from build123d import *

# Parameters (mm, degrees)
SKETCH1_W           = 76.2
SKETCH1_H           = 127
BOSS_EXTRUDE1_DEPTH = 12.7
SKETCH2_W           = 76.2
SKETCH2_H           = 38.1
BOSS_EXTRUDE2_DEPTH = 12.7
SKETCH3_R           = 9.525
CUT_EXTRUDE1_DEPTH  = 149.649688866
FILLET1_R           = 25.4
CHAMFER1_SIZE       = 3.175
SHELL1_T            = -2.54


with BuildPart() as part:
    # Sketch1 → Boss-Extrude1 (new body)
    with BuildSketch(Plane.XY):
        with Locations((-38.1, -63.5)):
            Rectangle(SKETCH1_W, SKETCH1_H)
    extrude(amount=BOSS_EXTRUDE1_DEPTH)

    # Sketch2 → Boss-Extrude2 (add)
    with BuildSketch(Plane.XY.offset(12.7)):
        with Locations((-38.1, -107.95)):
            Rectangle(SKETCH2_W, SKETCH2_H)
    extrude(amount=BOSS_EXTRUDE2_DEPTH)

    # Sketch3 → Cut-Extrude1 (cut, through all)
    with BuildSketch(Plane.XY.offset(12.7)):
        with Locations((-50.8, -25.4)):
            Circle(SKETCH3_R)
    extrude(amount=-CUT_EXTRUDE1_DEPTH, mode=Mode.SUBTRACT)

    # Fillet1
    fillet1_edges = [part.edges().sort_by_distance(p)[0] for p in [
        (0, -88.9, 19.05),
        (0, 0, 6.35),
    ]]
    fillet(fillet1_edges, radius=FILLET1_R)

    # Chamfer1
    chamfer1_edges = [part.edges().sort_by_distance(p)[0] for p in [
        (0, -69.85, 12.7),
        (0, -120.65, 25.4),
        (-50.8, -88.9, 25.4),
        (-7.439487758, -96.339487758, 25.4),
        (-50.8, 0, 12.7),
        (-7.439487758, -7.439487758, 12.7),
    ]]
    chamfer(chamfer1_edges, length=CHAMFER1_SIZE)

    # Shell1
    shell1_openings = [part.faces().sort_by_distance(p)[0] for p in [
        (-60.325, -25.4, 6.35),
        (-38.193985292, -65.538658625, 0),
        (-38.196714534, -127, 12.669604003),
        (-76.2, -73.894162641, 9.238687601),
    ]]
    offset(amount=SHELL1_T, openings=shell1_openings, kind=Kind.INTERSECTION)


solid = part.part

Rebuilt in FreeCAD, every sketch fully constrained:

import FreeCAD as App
import Part
import Sketcher

V = App.Vector
Q = App.Units.Quantity


def edges_at(feature, points):
    """Names of the edges that pass closest to the given points."""
    edges = feature.Shape.Edges
    near = lambda p: min(range(len(edges)), key=lambda i: edges[i].distToShape(Part.Vertex(*p))[0])
    return sorted({f"Edge{near(p) + 1}" for p in points})


def faces_at(feature, points):
    """Names of the faces that lie closest to the given points."""
    faces = feature.Shape.Faces
    near = lambda p: min(range(len(faces)), key=lambda i: faces[i].distToShape(Part.Vertex(*p))[0])
    return sorted({f"Face{near(p) + 1}" for p in points})


def add_polygon(sketch, points):
    """Adds a closed chain of lines whose ends are joined by coincident constraints."""
    first, n = sketch.GeometryCount, len(points)
    for a, b in zip(points, points[1:] + points[:1]):
        sketch.addGeometry(Part.LineSegment(App.Vector(*a, 0), App.Vector(*b, 0)), False)
    for i in range(n):
        sketch.addConstraint(Sketcher.Constraint("Coincident", first + i, 2, first + (i + 1) % n, 1))

doc = App.newDocument("Part")
body = doc.addObject("PartDesign::Body", "Body")

sketch1 = body.newObject("Sketcher::SketchObject", "Sketch")
sketch1.AttachmentSupport = (doc.getObject("XY_Plane"), [""])
sketch1.MapMode = "FlatFace"
add_polygon(sketch1, [(-76.2, 0), (-76.2, -127), (0, -127), (0, 0)])
sketch1.addConstraint(Sketcher.Constraint("Vertical", 0))
sketch1.addConstraint(Sketcher.Constraint("Horizontal", 1))
sketch1.addConstraint(Sketcher.Constraint("Vertical", 2))
sketch1.addConstraint(Sketcher.Constraint("Horizontal", 3))
sketch1.addConstraint(Sketcher.Constraint("Coincident", 2, 2, -1, 1))
sketch1.addConstraint(Sketcher.Constraint("DistanceX", 1, 1, 1, 2, Q("3 in")))
sketch1.addConstraint(Sketcher.Constraint("DistanceY", 0, 2, 0, 1, Q("5 in")))
pad1 = body.newObject("PartDesign::Pad", "Pad")
pad1.Profile = sketch1
pad1.Length = Q("0.5 in")

sketch2 = body.newObject("Sketcher::SketchObject", "Sketch001")
sketch2.AttachmentSupport = (doc.getObject("XY_Plane"), [""])
sketch2.MapMode = "FlatFace"
sketch2.AttachmentOffset = App.Placement(V(0, 0, 0.5 * 25.4), App.Rotation())
add_polygon(sketch2, [(-76.2, -88.9), (-76.2, -127), (0, -127), (0, -88.9)])
sketch2.addConstraint(Sketcher.Constraint("Vertical", 0))
sketch2.addConstraint(Sketcher.Constraint("Horizontal", 1))
sketch2.addConstraint(Sketcher.Constraint("Vertical", 2))
sketch2.addConstraint(Sketcher.Constraint("Horizontal", 3))
sketch2.addConstraint(Sketcher.Constraint("PointOnObject", 1, 2, -2))
sketch2.addConstraint(Sketcher.Constraint("DistanceX", 1, 1, 1, 2, Q("3 in")))
sketch2.addConstraint(Sketcher.Constraint("DistanceY", 0, 2, 0, 1, Q("1.5 in")))
sketch2.addConstraint(Sketcher.Constraint("DistanceY", 0, 2, -1, 1, Q("5 in")))
pad2 = body.newObject("PartDesign::Pad", "Pad001")
pad2.Profile = sketch2
pad2.Length = Q("0.5 in")

sketch3 = body.newObject("Sketcher::SketchObject", "Sketch002")
sketch3.AttachmentSupport = (doc.getObject("XY_Plane"), [""])
sketch3.MapMode = "FlatFace"
sketch3.AttachmentOffset = App.Placement(V(0, 0, 0.5 * 25.4), App.Rotation())
sketch3.addGeometry(Part.Circle(V(-50.8, -25.4, 0), V(0, 0, 1), 9.525), False)
sketch3.addConstraint(Sketcher.Constraint("Diameter", 0, Q("0.75 in")))
sketch3.addConstraint(Sketcher.Constraint("DistanceX", 0, 3, -1, 1, Q("2 in")))
sketch3.addConstraint(Sketcher.Constraint("DistanceY", 0, 3, -1, 1, Q("1 in")))
pocket1 = body.newObject("PartDesign::Pocket", "Pocket")
pocket1.Profile = sketch3
pocket1.Type = "ThroughAll"
doc.recompute()

fillet = body.newObject("PartDesign::Fillet", "Fillet")
fillet.Base = (pocket1, edges_at(pocket1, [(0, -88.9, 19.05), (0, 0, 6.35)]))
fillet.Radius = Q("1 in")
doc.recompute()

chamfer = body.newObject("PartDesign::Chamfer", "Chamfer")
chamfer.Base = (fillet, edges_at(fillet, [
    (0, -69.85, 12.7),
    (0, -120.65, 25.4),
    (-50.8, -88.9, 25.4),
    (-7.439, -96.339, 25.4),
    (-50.8, 0, 12.7),
    (-7.439, -7.439, 12.7),
]))
chamfer.Size = Q("0.125 in")
doc.recompute()

thickness = body.newObject("PartDesign::Thickness", "Thickness")
thickness.Base = (chamfer, faces_at(chamfer, [
    (-60.325, -25.4, 6.35),
    (-38.1, -63.5, 0),
    (-38.1, -127, 12.7),
    (-76.2, -63.5, 12.7),
]))
thickness.Value = Q("0.1 in")
thickness.Reversed = True
thickness.Join = "Intersection"

doc.recompute()
